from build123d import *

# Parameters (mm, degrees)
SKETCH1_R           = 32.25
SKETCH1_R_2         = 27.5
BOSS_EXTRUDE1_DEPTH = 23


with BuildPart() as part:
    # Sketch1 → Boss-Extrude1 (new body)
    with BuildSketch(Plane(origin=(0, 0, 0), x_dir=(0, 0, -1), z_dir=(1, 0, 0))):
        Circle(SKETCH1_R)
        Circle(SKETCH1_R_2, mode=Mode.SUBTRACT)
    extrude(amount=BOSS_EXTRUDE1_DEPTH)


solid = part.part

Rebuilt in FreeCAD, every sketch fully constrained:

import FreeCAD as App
import Part
import Sketcher
Q = App.Units.Quantity

doc = App.newDocument("Part")
body = doc.addObject("PartDesign::Body", "Body")

# Sketch on YZ plane
sketch1 = body.newObject("Sketcher::SketchObject", "Sketch")
sketch1.AttachmentSupport = (doc.getObject("YZ_Plane"), [""])
sketch1.MapMode = "FlatFace"
sketch1.addGeometry([
    Part.Circle(App.Vector(0, 0, 0), App.Vector(0, 0, 1), 32.25),
    Part.Circle(App.Vector(0, 0, 0), App.Vector(0, 0, 1), 27.5),
], False)
sketch1.addConstraint([
    Sketcher.Constraint("Coincident", 0, 3, -1, 1),
    Sketcher.Constraint("Coincident", 1, 3, -1, 1),
    Sketcher.Constraint("Diameter", 1, Q("55 mm")),
    Sketcher.Constraint("Diameter", 0, Q("64.5 mm")),
])
pad1 = body.newObject("PartDesign::Pad", "Pad")
pad1.Profile = sketch1
pad1.Length = 23

doc.recompute()
